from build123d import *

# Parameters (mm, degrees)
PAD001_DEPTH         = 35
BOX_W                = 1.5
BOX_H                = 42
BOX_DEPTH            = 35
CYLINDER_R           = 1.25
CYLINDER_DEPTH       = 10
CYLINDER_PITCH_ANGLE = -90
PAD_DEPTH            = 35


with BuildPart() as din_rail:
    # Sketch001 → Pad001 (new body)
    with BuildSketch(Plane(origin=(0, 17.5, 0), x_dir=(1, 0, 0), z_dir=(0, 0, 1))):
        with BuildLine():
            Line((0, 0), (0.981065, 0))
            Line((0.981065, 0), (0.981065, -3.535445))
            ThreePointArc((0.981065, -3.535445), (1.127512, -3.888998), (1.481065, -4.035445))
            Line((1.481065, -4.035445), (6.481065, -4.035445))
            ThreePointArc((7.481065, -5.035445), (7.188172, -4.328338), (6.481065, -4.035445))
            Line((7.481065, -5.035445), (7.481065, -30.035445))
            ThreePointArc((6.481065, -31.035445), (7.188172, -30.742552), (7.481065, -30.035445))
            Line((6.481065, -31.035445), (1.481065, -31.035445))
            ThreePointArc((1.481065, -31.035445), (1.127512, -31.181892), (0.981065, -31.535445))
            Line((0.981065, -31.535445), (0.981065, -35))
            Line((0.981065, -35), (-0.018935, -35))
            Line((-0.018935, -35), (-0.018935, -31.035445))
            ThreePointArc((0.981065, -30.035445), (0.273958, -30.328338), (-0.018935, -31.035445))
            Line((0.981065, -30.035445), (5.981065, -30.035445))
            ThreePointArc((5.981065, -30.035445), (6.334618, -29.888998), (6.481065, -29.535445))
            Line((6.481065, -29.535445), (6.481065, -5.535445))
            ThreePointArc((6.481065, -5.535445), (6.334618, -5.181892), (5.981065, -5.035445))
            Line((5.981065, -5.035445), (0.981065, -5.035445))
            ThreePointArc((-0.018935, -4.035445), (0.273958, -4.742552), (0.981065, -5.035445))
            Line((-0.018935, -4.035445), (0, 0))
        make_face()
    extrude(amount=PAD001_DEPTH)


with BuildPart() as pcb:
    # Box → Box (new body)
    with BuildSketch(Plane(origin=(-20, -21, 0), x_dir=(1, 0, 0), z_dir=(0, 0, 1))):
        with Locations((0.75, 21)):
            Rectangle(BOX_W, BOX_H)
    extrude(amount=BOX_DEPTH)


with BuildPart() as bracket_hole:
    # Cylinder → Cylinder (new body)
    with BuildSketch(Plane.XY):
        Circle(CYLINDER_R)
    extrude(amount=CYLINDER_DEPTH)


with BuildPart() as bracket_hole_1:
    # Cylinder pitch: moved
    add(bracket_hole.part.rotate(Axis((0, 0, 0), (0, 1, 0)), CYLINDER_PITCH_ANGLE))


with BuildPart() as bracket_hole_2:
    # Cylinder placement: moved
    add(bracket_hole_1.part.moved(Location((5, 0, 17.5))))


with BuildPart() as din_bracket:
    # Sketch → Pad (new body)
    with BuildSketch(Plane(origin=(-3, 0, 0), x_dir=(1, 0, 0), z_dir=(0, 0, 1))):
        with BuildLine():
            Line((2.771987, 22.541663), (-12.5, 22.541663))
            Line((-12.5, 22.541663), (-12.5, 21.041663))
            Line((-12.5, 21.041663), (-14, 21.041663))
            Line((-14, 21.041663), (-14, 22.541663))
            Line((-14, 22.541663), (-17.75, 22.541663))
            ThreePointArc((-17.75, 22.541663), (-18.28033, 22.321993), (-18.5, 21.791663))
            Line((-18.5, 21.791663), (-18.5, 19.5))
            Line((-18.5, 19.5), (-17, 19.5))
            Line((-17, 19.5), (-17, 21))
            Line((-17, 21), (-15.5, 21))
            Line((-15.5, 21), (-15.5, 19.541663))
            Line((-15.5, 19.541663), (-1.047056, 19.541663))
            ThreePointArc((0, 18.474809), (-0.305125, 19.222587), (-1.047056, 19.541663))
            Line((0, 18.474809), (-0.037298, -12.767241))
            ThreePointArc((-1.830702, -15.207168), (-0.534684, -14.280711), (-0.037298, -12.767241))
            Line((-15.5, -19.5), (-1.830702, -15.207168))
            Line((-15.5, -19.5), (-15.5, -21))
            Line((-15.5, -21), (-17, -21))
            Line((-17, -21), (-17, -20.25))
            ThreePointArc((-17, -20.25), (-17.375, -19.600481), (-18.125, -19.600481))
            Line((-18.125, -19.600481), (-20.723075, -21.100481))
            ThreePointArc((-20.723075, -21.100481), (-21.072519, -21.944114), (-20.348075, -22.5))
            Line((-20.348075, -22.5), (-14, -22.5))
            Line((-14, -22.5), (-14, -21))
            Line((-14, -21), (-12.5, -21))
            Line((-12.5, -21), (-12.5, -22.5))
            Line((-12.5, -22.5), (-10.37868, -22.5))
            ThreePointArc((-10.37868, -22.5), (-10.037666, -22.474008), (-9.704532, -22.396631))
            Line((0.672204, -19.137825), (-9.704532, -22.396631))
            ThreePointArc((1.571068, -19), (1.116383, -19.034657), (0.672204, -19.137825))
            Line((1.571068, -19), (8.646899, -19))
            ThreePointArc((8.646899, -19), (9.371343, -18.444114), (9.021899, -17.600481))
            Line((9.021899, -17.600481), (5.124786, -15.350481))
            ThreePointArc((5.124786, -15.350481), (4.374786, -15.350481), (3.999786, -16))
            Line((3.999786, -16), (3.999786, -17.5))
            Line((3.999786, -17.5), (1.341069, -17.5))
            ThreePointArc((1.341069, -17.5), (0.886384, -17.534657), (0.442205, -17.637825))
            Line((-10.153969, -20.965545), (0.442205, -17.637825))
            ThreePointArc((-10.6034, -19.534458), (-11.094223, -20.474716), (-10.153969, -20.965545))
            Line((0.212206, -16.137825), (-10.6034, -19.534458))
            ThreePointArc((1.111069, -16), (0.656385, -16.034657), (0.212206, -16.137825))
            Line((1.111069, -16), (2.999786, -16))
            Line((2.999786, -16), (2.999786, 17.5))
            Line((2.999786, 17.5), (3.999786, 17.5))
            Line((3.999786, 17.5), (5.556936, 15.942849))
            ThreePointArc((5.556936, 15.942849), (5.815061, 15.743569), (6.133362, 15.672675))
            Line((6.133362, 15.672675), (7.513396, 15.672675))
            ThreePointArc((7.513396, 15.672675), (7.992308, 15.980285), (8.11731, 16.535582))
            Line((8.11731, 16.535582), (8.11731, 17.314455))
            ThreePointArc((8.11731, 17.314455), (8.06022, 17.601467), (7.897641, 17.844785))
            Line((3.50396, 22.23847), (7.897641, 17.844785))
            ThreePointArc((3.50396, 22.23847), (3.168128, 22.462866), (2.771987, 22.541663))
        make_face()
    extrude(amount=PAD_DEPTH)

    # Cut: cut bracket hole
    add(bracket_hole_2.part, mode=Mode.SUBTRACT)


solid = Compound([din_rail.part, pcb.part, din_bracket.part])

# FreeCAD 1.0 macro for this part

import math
import FreeCAD as App
import Part
import Sketcher
Q = App.Units.Quantity


def add_polygon(sketch, points):
    """Adds a closed chain of lines whose ends are joined by coincident constraints."""
    first, n = sketch.GeometryCount, len(points)
    for a, b in zip(points, points[1:] + points[:1]):
        sketch.addGeometry(Part.LineSegment(App.Vector(*a, 0), App.Vector(*b, 0)), False)
    for i in range(n):
        sketch.addConstraint(Sketcher.Constraint("Coincident", first + i, 2, first + (i + 1) % n, 1))

doc = App.newDocument("Part")
body = doc.addObject("PartDesign::Body", "Body")

sketch1 = body.newObject("Sketcher::SketchObject", "Sketch")
sketch1.AttachmentSupport = (doc.getObject("XY_Plane"), [""])
sketch1.MapMode = "FlatFace"
sketch1.addGeometry(Part.LineSegment(App.Vector(1, 17.5, 0), App.Vector(0, 17.5, 0)), False)
sketch1.addGeometry(Part.LineSegment(App.Vector(0, 17.5, 0), App.Vector(0, 13.5, 0)), False)
sketch1.addGeometry(Part.ArcOfCircle(Part.Circle(App.Vector(1, 13.5, 0), App.Vector(0, 0, 1), 1), math.radians(180), math.radians(270)), False)
sketch1.addGeometry(Part.LineSegment(App.Vector(1, 12.5, 0), App.Vector(6, 12.5, 0)), False)
sketch1.addGeometry(Part.ArcOfCircle(Part.Circle(App.Vector(6, 12, 0), App.Vector(0, 0, 1), 0.5), math.radians(0), math.radians(90)), False)
sketch1.addGeometry(Part.LineSegment(App.Vector(6.5, 12, 0), App.Vector(6.5, -12, 0)), False)
sketch1.addGeometry(Part.ArcOfCircle(Part.Circle(App.Vector(6, -12, 0), App.Vector(0, 0, 1), 0.5), math.radians(-90), math.radians(0)), False)
sketch1.addGeometry(Part.LineSegment(App.Vector(6, -12.5, 0), App.Vector(1, -12.5, 0)), False)
sketch1.addGeometry(Part.ArcOfCircle(Part.Circle(App.Vector(1, -13.5, 0), App.Vector(0, 0, 1), 1), math.radians(90), math.radians(180)), False)
sketch1.addGeometry(Part.LineSegment(App.Vector(0, -13.5, 0), App.Vector(0, -17.5, 0)), False)
sketch1.addGeometry(Part.LineSegment(App.Vector(0, -17.5, 0), App.Vector(1, -17.5, 0)), False)
sketch1.addGeometry(Part.LineSegment(App.Vector(1, -17.5, 0), App.Vector(1, -14, 0)), False)
sketch1.addGeometry(Part.ArcOfCircle(Part.Circle(App.Vector(1.5, -14, 0), App.Vector(0, 0, 1), 0.5), math.radians(90), math.radians(180)), False)
sketch1.addGeometry(Part.LineSegment(App.Vector(1.5, -13.5, 0), App.Vector(6.5, -13.5, 0)), False)
sketch1.addGeometry(Part.ArcOfCircle(Part.Circle(App.Vector(6.5, -12.5, 0), App.Vector(0, 0, 1), 1), math.radians(-90), math.radians(0)), False)
sketch1.addGeometry(Part.LineSegment(App.Vector(7.5, -12.5, 0), App.Vector(7.5, 12.5, 0)), False)
sketch1.addGeometry(Part.ArcOfCircle(Part.Circle(App.Vector(6.5, 12.5, 0), App.Vector(0, 0, 1), 1), math.radians(0), math.radians(90)), False)
sketch1.addGeometry(Part.LineSegment(App.Vector(6.5, 13.5, 0), App.Vector(1.5, 13.5, 0)), False)
sketch1.addGeometry(Part.ArcOfCircle(Part.Circle(App.Vector(1.5, 14, 0), App.Vector(0, 0, 1), 0.5), math.radians(-180), math.radians(-90)), False)
sketch1.addGeometry(Part.LineSegment(App.Vector(1, 14, 0), App.Vector(1, 17.5, 0)), False)
sketch1.addConstraint(Sketcher.Constraint("Coincident", 0, 2, 1, 1))
sketch1.addConstraint(Sketcher.Constraint("Coincident", 1, 2, 2, 1))
sketch1.addConstraint(Sketcher.Constraint("Tangent", 2, 2, 3, 1))
sketch1.addConstraint(Sketcher.Constraint("Coincident", 3, 2, 4, 2))
sketch1.addConstraint(Sketcher.Constraint("Coincident", 4, 1, 5, 1))
sketch1.addConstraint(Sketcher.Constraint("Coincident", 5, 2, 6, 2))
sketch1.addConstraint(Sketcher.Constraint("Coincident", 6, 1, 7, 1))
sketch1.addConstraint(Sketcher.Constraint("Tangent", 7, 2, 8, 1))
sketch1.addConstraint(Sketcher.Constraint("Tangent", 8, 2, 9, 1))
sketch1.addConstraint(Sketcher.Constraint("Coincident", 9, 2, 10, 1))
sketch1.addConstraint(Sketcher.Constraint("Coincident", 10, 2, 11, 1))
sketch1.addConstraint(Sketcher.Constraint("Coincident", 11, 2, 12, 2))
sketch1.addConstraint(Sketcher.Constraint("Coincident", 12, 1, 13, 1))
sketch1.addConstraint(Sketcher.Constraint("Tangent", 13, 2, 14, 1))
sketch1.addConstraint(Sketcher.Constraint("Tangent", 14, 2, 15, 1))
sketch1.addConstraint(Sketcher.Constraint("Tangent", 15, 2, 16, 1))
sketch1.addConstraint(Sketcher.Constraint("Tangent", 16, 2, 17, 1))
sketch1.addConstraint(Sketcher.Constraint("Coincident", 17, 2, 18, 2))
sketch1.addConstraint(Sketcher.Constraint("Coincident", 18, 1, 19, 1))
sketch1.addConstraint(Sketcher.Constraint("Coincident", 19, 2, 0, 1))
sketch1.addConstraint(Sketcher.Constraint("Horizontal", 0))
sketch1.addConstraint(Sketcher.Constraint("Horizontal", 3))
sketch1.addConstraint(Sketcher.Constraint("Vertical", 5))
sketch1.addConstraint(Sketcher.Constraint("Horizontal", 7))
sketch1.addConstraint(Sketcher.Constraint("Vertical", 9))
sketch1.addConstraint(Sketcher.Constraint("Horizontal", 10))
sketch1.addConstraint(Sketcher.Constraint("Vertical", 11))
sketch1.addConstraint(Sketcher.Constraint("Horizontal", 13))
sketch1.addConstraint(Sketcher.Constraint("Vertical", 15))
sketch1.addConstraint(Sketcher.Constraint("Horizontal", 17))
sketch1.addConstraint(Sketcher.Constraint("Vertical", 19))
sketch1.addConstraint(Sketcher.Constraint("Equal", 4, 6))
sketch1.addConstraint(Sketcher.Constraint("Equal", 2, 8))
sketch1.addConstraint(Sketcher.Constraint("Equal", 6, 12))
sketch1.addConstraint(Sketcher.Constraint("Equal", 8, 14))
sketch1.addConstraint(Sketcher.Constraint("Equal", 14, 16))
sketch1.addConstraint(Sketcher.Constraint("Equal", 12, 18))
sketch1.addConstraint(Sketcher.Constraint("Symmetric", 10, 2, 19, 2, -1))
sketch1.addConstraint(Sketcher.Constraint("PointOnObject", 0, 2, -2))
sketch1.addConstraint(Sketcher.Constraint("Horizontal", 2, 3, 1, 2))
sketch1.addConstraint(Sketcher.Constraint("Horizontal", 16, 3, 2, 2))
sketch1.addConstraint(Sketcher.Constraint("Horizontal", 6, 3, 5, 2))
sketch1.addConstraint(Sketcher.Constraint("Horizontal", 14, 3, 6, 1))
sketch1.addConstraint(Sketcher.Constraint("Horizontal", 12, 3, 11, 2))
sketch1.addConstraint(Sketcher.Constraint("Vertical", 2, 3, 8, 3))
sketch1.addConstraint(Sketcher.Constraint("Vertical", 6, 3, 3, 2))
sketch1.addConstraint(Sketcher.Constraint("Vertical", 16, 3, 4, 1))
sketch1.addConstraint(Sketcher.Constraint("Vertical", 3, 2, 6, 1))
sketch1.addConstraint(Sketcher.Constraint("Vertical", 7, 2, 10, 2))
sketch1.addConstraint(Sketcher.Constraint("Vertical", 18, 3, 12, 1))
sketch1.addConstraint(Sketcher.Constraint("Vertical", 12, 1, 17, 2))
sketch1.addConstraint(Sketcher.Constraint("Radius", 2, Q("0.999999 mm")))
sketch1.addConstraint(Sketcher.Constraint("Radius", 4, Q("0.500001 mm")))
sketch1.addConstraint(Sketcher.Constraint("DistanceX", 3, 1, 3, 2, Q("5 mm")))
sketch1.addConstraint(Sketcher.Constraint("DistanceY", 5, 2, 5, 1, Q("24 mm")))
sketch1.addConstraint(Sketcher.Constraint("DistanceY", 15, 1, 15, 2, Q("25 mm")))
sketch1.addConstraint(Sketcher.Constraint("DistanceY", -1, 1, 0, 2, Q("17.5 mm")))
sketch1.addConstraint(Sketcher.Constraint("DistanceY", 2, 3, 18, 1, Q("0.500001 mm")))
sketch1.addConstraint(Sketcher.Constraint("Distance", 1, Q("4.035489 mm")))
sketch1.addConstraint(Sketcher.Constraint("DistanceX", 0, 2, 0, 1, Q("0.981065 mm")))
pad1 = body.newObject("PartDesign::Pad", "Pad")
pad1.Profile = sketch1
pad1.Length = 35
body2 = doc.addObject("PartDesign::Body", "Body001")

sketch2 = body2.newObject("Sketcher::SketchObject", "Sketch001")
sketch2.AttachmentSupport = (doc.getObject("XY_Plane001"), [""])
sketch2.MapMode = "FlatFace"
add_polygon(sketch2, [(-20, 21), (-20, -21), (-18.5, -21), (-18.5, 21)])
sketch2.addConstraint(Sketcher.Constraint("Vertical", 0))
sketch2.addConstraint(Sketcher.Constraint("Horizontal", 1))
sketch2.addConstraint(Sketcher.Constraint("Vertical", 2))
sketch2.addConstraint(Sketcher.Constraint("Horizontal", 3))
sketch2.addConstraint(Sketcher.Constraint("DistanceY", 0, 2, 0, 1, Q("42 mm")))
sketch2.addConstraint(Sketcher.Constraint("DistanceX", 1, 1, 1, 2, Q("1.5 mm")))
sketch2.addConstraint(Sketcher.Constraint("DistanceX", 0, 2, -1, 1, Q("20 mm")))
sketch2.addConstraint(Sketcher.Constraint("DistanceY", 0, 2, -1, 1, Q("21 mm")))
pad2 = body2.newObject("PartDesign::Pad", "Pad001")
pad2.Profile = sketch2
pad2.Length = 35
body3 = doc.addObject("PartDesign::Body", "Body002")

sketch3 = body3.newObject("Sketcher::SketchObject", "Sketch002")
sketch3.AttachmentSupport = (doc.getObject("XY_Plane002"), [""])
sketch3.MapMode = "FlatFace"
sketch3.addGeometry(Part.Circle(App.Vector(0, 0, 0), App.Vector(0, 0, 1), 1.2), False)
sketch3.addConstraint(Sketcher.Constraint("Coincident", 0, 3, -1, 1))
sketch3.addConstraint(Sketcher.Constraint("Diameter", 0, Q("2.5 mm")))
pad3 = body3.newObject("PartDesign::Pad", "Pad002")
pad3.Profile = sketch3
pad3.Length = 10
body4 = doc.addObject("PartDesign::Body", "Body003")
doc.recompute()

body3.Placement = App.Placement(App.Vector(0, 0, 0), App.Rotation(App.Vector(0, 1, 0), 270))
boolean = body4.newObject("PartDesign::Boolean", "Boolean")
boolean.Type = "Fuse"
boolean.addObjects([body3])
body5 = doc.addObject("PartDesign::Body", "Body004")
doc.recompute()

body4.Placement = App.Placement(App.Vector(5, 0, 17.5), App.Rotation(App.Vector(0, 0, 1), 0))
boolean2 = body5.newObject("PartDesign::Boolean", "Boolean001")
boolean2.Type = "Fuse"
boolean2.addObjects([body4])
body6 = doc.addObject("PartDesign::Body", "Body005")

sketch4 = body6.newObject("Sketcher::SketchObject", "Sketch003")
sketch4.AttachmentSupport = (doc.getObject("XY_Plane005"), [""])
sketch4.MapMode = "FlatFace"
sketch4.addGeometry(Part.LineSegment(App.Vector(-0.228013, 22.541663, 0), App.Vector(-15.5, 22.541663, 0)), False)
sketch4.addGeometry(Part.LineSegment(App.Vector(-15.5, 22.541663, 0), App.Vector(-15.5, 21.041663, 0)), False)
sketch4.addGeometry(Part.LineSegment(App.Vector(-15.5, 21.041663, 0), App.Vector(-17, 21.041663, 0)), False)
sketch4.addGeometry(Part.LineSegment(App.Vector(-17, 21.041663, 0), App.Vector(-17, 22.541663, 0)), False)
sketch4.addGeometry(Part.LineSegment(App.Vector(-17, 22.541663, 0), App.Vector(-20.75, 22.541663, 0)), False)
sketch4.addGeometry(Part.ArcOfCircle(Part.Circle(App.Vector(-20.75, 21.791663, 0), App.Vector(0, 0, 1), 0.75), math.radians(90.000022), math.radians(179.999978)), False)
sketch4.addGeometry(Part.LineSegment(App.Vector(-21.5, 21.791663, 0), App.Vector(-21.5, 19.5, 0)), False)
sketch4.addGeometry(Part.LineSegment(App.Vector(-21.5, 19.5, 0), App.Vector(-20, 19.5, 0)), False)
sketch4.addGeometry(Part.LineSegment(App.Vector(-20, 19.5, 0), App.Vector(-20, 21, 0)), False)
sketch4.addGeometry(Part.LineSegment(App.Vector(-20, 21, 0), App.Vector(-18.5, 21, 0)), False)
sketch4.addGeometry(Part.LineSegment(App.Vector(-18.5, 21, 0), App.Vector(-18.5, 19.541663, 0)), False)
sketch4.addGeometry(Part.LineSegment(App.Vector(-18.5, 19.541663, 0), App.Vector(-4.047056, 19.541663, 0)), False)
sketch4.addGeometry(Part.ArcOfCircle(Part.Circle(App.Vector(-4.065745, 18.476081, 0), App.Vector(0, 0, 1), 1.065746), math.radians(-0.068378), math.radians(88.995192)), False)
sketch4.addGeometry(Part.LineSegment(App.Vector(-3, 18.474809, 0), App.Vector(-3.037298, -12.767241, 0)), False)
sketch4.addGeometry(Part.ArcOfCircle(Part.Circle(App.Vector(-5.597918, -12.764186, 0), App.Vector(0, 0, 1), 2.560622), math.radians(-72.565163), math.radians(-0.068368)), False)
sketch4.addGeometry(Part.LineSegment(App.Vector(-4.830702, -15.207168, 0), App.Vector(-18.5, -19.5, 0)), False)
sketch4.addGeometry(Part.LineSegment(App.Vector(-18.5, -19.5, 0), App.Vector(-18.5, -21, 0)), False)
sketch4.addGeometry(Part.LineSegment(App.Vector(-18.5, -21, 0), App.Vector(-20, -21, 0)), False)
sketch4.addGeometry(Part.LineSegment(App.Vector(-20, -21, 0), App.Vector(-20, -20.25, 0)), False)
sketch4.addGeometry(Part.ArcOfCircle(Part.Circle(App.Vector(-20.75, -20.25, 0), App.Vector(0, 0, 1), 0.75), math.radians(0.000004), math.radians(120)), False)
sketch4.addGeometry(Part.LineSegment(App.Vector(-21.125, -19.600481, 0), App.Vector(-23.723075, -21.100481, 0)), False)
sketch4.addGeometry(Part.ArcOfCircle(Part.Circle(App.Vector(-23.348074, -21.75, 0), App.Vector(0, 0, 1), 0.75), math.radians(120.000042), math.radians(269.999959)), False)
sketch4.addGeometry(Part.LineSegment(App.Vector(-23.348075, -22.5, 0), App.Vector(-17, -22.5, 0)), False)
sketch4.addGeometry(Part.LineSegment(App.Vector(-17, -22.5, 0), App.Vector(-17, -21, 0)), False)
sketch4.addGeometry(Part.LineSegment(App.Vector(-17, -21, 0), App.Vector(-15.5, -21, 0)), False)
sketch4.addGeometry(Part.LineSegment(App.Vector(-15.5, -21, 0), App.Vector(-15.5, -22.5, 0)), False)
sketch4.addGeometry(Part.LineSegment(App.Vector(-15.5, -22.5, 0), App.Vector(-13.37868, -22.5, 0)), False)
sketch4.addGeometry(Part.ArcOfCircle(Part.Circle(App.Vector(-13.378674, -20.250039, 0), App.Vector(0, 0, 1), 2.249961), math.radians(-90.000155), math.radians(-72.564991)), False)
sketch4.addGeometry(Part.LineSegment(App.Vector(-12.704532, -22.396631, 0), App.Vector(-2.327796, -19.137825, 0)), False)
sketch4.addGeometry(Part.ArcOfCircle(Part.Circle(App.Vector(-1.428925, -22.000051, 0), App.Vector(0, 0, 1), 3.000051), math.radians(90.000125), math.radians(107.434687)), False)
sketch4.addGeometry(Part.LineSegment(App.Vector(-1.428932, -19, 0), App.Vector(5.646899, -19, 0)), False)
sketch4.addGeometry(Part.ArcOfCircle(Part.Circle(App.Vector(5.646898, -18.25, 0), App.Vector(0, 0, 1), 0.75), math.radians(-89.999959), math.radians(59.999958)), False)
sketch4.addGeometry(Part.LineSegment(App.Vector(6.021899, -17.600481, 0), App.Vector(2.124786, -15.350481, 0)), False)
sketch4.addGeometry(Part.ArcOfCircle(Part.Circle(App.Vector(1.749786, -16, 0), App.Vector(0, 0, 1), 0.75), math.radians(60), math.radians(179.999996)), False)
sketch4.addGeometry(Part.LineSegment(App.Vector(0.999786, -16, 0), App.Vector(0.999786, -17.5, 0)), False)
sketch4.addGeometry(Part.LineSegment(App.Vector(0.999786, -17.5, 0), App.Vector(-1.658931, -17.5, 0)), False)
sketch4.addGeometry(Part.ArcOfCircle(Part.Circle(App.Vector(-1.658924, -20.500051, 0), App.Vector(0, 0, 1), 3.000051), math.radians(90.000125), math.radians(107.434687)), False)
sketch4.addGeometry(Part.LineSegment(App.Vector(-2.557795, -17.637825, 0), App.Vector(-13.153969, -20.965545, 0)), False)
sketch4.addGeometry(Part.ArcOfCircle(Part.Circle(App.Vector(-13.37868, -20.25, 0), App.Vector(0, 0, 1), 0.75), math.radians(107.435215), math.radians(287.434441)), False)
sketch4.addGeometry(Part.LineSegment(App.Vector(-13.6034, -19.534458, 0), App.Vector(-2.787794, -16.137825, 0)), False)
sketch4.addGeometry(Part.ArcOfCircle(Part.Circle(App.Vector(-1.888923, -19.000051, 0), App.Vector(0, 0, 1), 3.000051), math.radians(90.000144), math.radians(107.434687)), False)
sketch4.addGeometry(Part.LineSegment(App.Vector(-1.888931, -16, 0), App.Vector(-0.000214, -16, 0)), False)
sketch4.addGeometry(Part.LineSegment(App.Vector(-0.000214, -16, 0), App.Vector(-0.000214, 17.5, 0)), False)
sketch4.addGeometry(Part.LineSegment(App.Vector(-0.000214, 17.5, 0), App.Vector(0.999786, 17.5, 0)), False)
sketch4.addGeometry(Part.LineSegment(App.Vector(0.999786, 17.5, 0), App.Vector(2.556936, 15.942849, 0)), False)
sketch4.addGeometry(Part.ArcOfCircle(Part.Circle(App.Vector(3.13336, 16.422672, 0), App.Vector(0, 0, 1), 0.749997), math.radians(-140.225599), math.radians(-89.999884)), False)
sketch4.addGeometry(Part.LineSegment(App.Vector(3.133362, 15.672675, 0), App.Vector(4.513396, 15.672675, 0)), False)
sketch4.addGeometry(Part.ArcOfCircle(Part.Circle(App.Vector(4.377843, 16.410324, 0), App.Vector(0, 0, 1), 0.750001), math.radians(-79.587298), math.radians(9.614033)), False)
sketch4.addGeometry(Part.LineSegment(App.Vector(5.11731, 16.535582, 0), App.Vector(5.11731, 17.314455, 0)), False)
sketch4.addGeometry(Part.ArcOfCircle(Part.Circle(App.Vector(4.367307, 17.314455, 0), App.Vector(0, 0, 1), 0.750003), math.radians(0.000018), math.radians(44.99982)), False)
sketch4.addGeometry(Part.LineSegment(App.Vector(4.897641, 17.844785, 0), App.Vector(0.50396, 22.23847, 0)), False)
sketch4.addGeometry(Part.ArcOfCircle(Part.Circle(App.Vector(-0.228011, 21.5065, 0), App.Vector(0, 0, 1), 1.035163), math.radians(44.999934), math.radians(90.000085)), False)
sketch4.addConstraint(Sketcher.Constraint("Coincident", 0, 2, 1, 1))
sketch4.addConstraint(Sketcher.Constraint("Coincident", 1, 2, 2, 1))
sketch4.addConstraint(Sketcher.Constraint("Coincident", 2, 2, 3, 1))
sketch4.addConstraint(Sketcher.Constraint("Coincident", 3, 2, 4, 1))
sketch4.addConstraint(Sketcher.Constraint("Coincident", 4, 2, 5, 1))
sketch4.addConstraint(Sketcher.Constraint("Coincident", 5, 2, 6, 1))
sketch4.addConstraint(Sketcher.Constraint("Coincident", 6, 2, 7, 1))
sketch4.addConstraint(Sketcher.Constraint("Coincident", 7, 2, 8, 1))
sketch4.addConstraint(Sketcher.Constraint("Coincident", 8, 2, 9, 1))
sketch4.addConstraint(Sketcher.Constraint("Coincident", 9, 2, 10, 1))
sketch4.addConstraint(Sketcher.Constraint("Coincident", 10, 2, 11, 1))
sketch4.addConstraint(Sketcher.Constraint("Coincident", 11, 2, 12, 2))
sketch4.addConstraint(Sketcher.Constraint("Coincident", 12, 1, 13, 1))
sketch4.addConstraint(Sketcher.Constraint("Coincident", 13, 2, 14, 2))
sketch4.addConstraint(Sketcher.Constraint("Coincident", 14, 1, 15, 1))
sketch4.addConstraint(Sketcher.Constraint("Coincident", 15, 2, 16, 1))
sketch4.addConstraint(Sketcher.Constraint("Coincident", 16, 2, 17, 1))
sketch4.addConstraint(Sketcher.Constraint("Coincident", 17, 2, 18, 1))
sketch4.addConstraint(Sketcher.Constraint("Coincident", 18, 2, 19, 1))
sketch4.addConstraint(Sketcher.Constraint("Coincident", 19, 2, 20, 1))
sketch4.addConstraint(Sketcher.Constraint("Coincident", 20, 2, 21, 1))
sketch4.addConstraint(Sketcher.Constraint("Coincident", 21, 2, 22, 1))
sketch4.addConstraint(Sketcher.Constraint("Coincident", 22, 2, 23, 1))
sketch4.addConstraint(Sketcher.Constraint("Coincident", 23, 2, 24, 1))
sketch4.addConstraint(Sketcher.Constraint("Coincident", 24, 2, 25, 1))
sketch4.addConstraint(Sketcher.Constraint("Coincident", 25, 2, 26, 1))
sketch4.addConstraint(Sketcher.Constraint("Coincident", 26, 2, 27, 1))
sketch4.addConstraint(Sketcher.Constraint("Coincident", 27, 2, 28, 1))
sketch4.addConstraint(Sketcher.Constraint("Coincident", 28, 2, 29, 2))
sketch4.addConstraint(Sketcher.Constraint("Coincident", 29, 1, 30, 1))
sketch4.addConstraint(Sketcher.Constraint("Coincident", 30, 2, 31, 1))
sketch4.addConstraint(Sketcher.Constraint("Coincident", 31, 2, 32, 1))
sketch4.addConstraint(Sketcher.Constraint("Coincident", 32, 2, 33, 1))
sketch4.addConstraint(Sketcher.Constraint("Coincident", 33, 2, 34, 1))
sketch4.addConstraint(Sketcher.Constraint("Coincident", 34, 2, 35, 1))
sketch4.addConstraint(Sketcher.Constraint("Coincident", 35, 2, 36, 1))
sketch4.addConstraint(Sketcher.Constraint("Coincident", 36, 2, 37, 1))
sketch4.addConstraint(Sketcher.Constraint("Coincident", 37, 2, 38, 2))
sketch4.addConstraint(Sketcher.Constraint("Coincident", 38, 1, 39, 1))
sketch4.addConstraint(Sketcher.Constraint("Coincident", 39, 2, 40, 2))
sketch4.addConstraint(Sketcher.Constraint("Coincident", 40, 1, 41, 1))
sketch4.addConstraint(Sketcher.Constraint("Coincident", 41, 2, 42, 1))
sketch4.addConstraint(Sketcher.Constraint("Coincident", 42, 2, 43, 1))
sketch4.addConstraint(Sketcher.Constraint("Coincident", 43, 2, 44, 1))
sketch4.addConstraint(Sketcher.Constraint("Coincident", 44, 2, 45, 1))
sketch4.addConstraint(Sketcher.Constraint("Coincident", 45, 2, 46, 1))
sketch4.addConstraint(Sketcher.Constraint("Coincident", 46, 2, 47, 1))
sketch4.addConstraint(Sketcher.Constraint("Coincident", 47, 2, 48, 1))
sketch4.addConstraint(Sketcher.Constraint("Coincident", 48, 2, 49, 1))
sketch4.addConstraint(Sketcher.Constraint("Coincident", 49, 2, 50, 1))
sketch4.addConstraint(Sketcher.Constraint("Coincident", 50, 2, 51, 1))
sketch4.addConstraint(Sketcher.Constraint("Coincident", 51, 2, 0, 1))
sketch4.addConstraint(Sketcher.Constraint("Horizontal", 0))
sketch4.addConstraint(Sketcher.Constraint("Vertical", 1))
sketch4.addConstraint(Sketcher.Constraint("Horizontal", 2))
sketch4.addConstraint(Sketcher.Constraint("Vertical", 3))
sketch4.addConstraint(Sketcher.Constraint("Horizontal", 4))
sketch4.addConstraint(Sketcher.Constraint("Vertical", 6))
sketch4.addConstraint(Sketcher.Constraint("Horizontal", 7))
sketch4.addConstraint(Sketcher.Constraint("Vertical", 8))
sketch4.addConstraint(Sketcher.Constraint("Horizontal", 9))
sketch4.addConstraint(Sketcher.Constraint("Vertical", 10))
sketch4.addConstraint(Sketcher.Constraint("Horizontal", 11))
sketch4.addConstraint(Sketcher.Constraint("Vertical", 16))
sketch4.addConstraint(Sketcher.Constraint("Horizontal", 17))
sketch4.addConstraint(Sketcher.Constraint("Vertical", 18))
sketch4.addConstraint(Sketcher.Constraint("Horizontal", 22))
sketch4.addConstraint(Sketcher.Constraint("Vertical", 23))
sketch4.addConstraint(Sketcher.Constraint("Horizontal", 24))
sketch4.addConstraint(Sketcher.Constraint("Vertical", 25))
sketch4.addConstraint(Sketcher.Constraint("Horizontal", 26))
sketch4.addConstraint(Sketcher.Constraint("Horizontal", 30))
sketch4.addConstraint(Sketcher.Constraint("Vertical", 34))
sketch4.addConstraint(Sketcher.Constraint("Horizontal", 35))
sketch4.addConstraint(Sketcher.Constraint("Horizontal", 41))
sketch4.addConstraint(Sketcher.Constraint("Vertical", 42))
sketch4.addConstraint(Sketcher.Constraint("Horizontal", 43))
sketch4.addConstraint(Sketcher.Constraint("Horizontal", 46))
sketch4.addConstraint(Sketcher.Constraint("Vertical", 48))
sketch4.addConstraint(Sketcher.Constraint("DistanceX", 43, 1, 43, 2, Q("1 mm")))
sketch4.addConstraint(Sketcher.Constraint("Radius", 5, Q("0.75 mm")))
sketch4.addConstraint(Sketcher.Constraint("Radius", 19, Q("0.75 mm")))
sketch4.addConstraint(Sketcher.Constraint("Radius", 21, Q("0.75 mm")))
sketch4.addConstraint(Sketcher.Constraint("Radius", 31, Q("0.75 mm")))
sketch4.addConstraint(Sketcher.Constraint("Radius", 33, Q("0.75 mm")))
sketch4.addConstraint(Sketcher.Constraint("Radius", 38, Q("0.75 mm")))
sketch4.addConstraint(Sketcher.Constraint("Radius", 47, Q("0.750001 mm")))
sketch4.addConstraint(Sketcher.Constraint("Distance", 20, Q("2.999999 mm")))
sketch4.addConstraint(Sketcher.Constraint("DistanceX", 2, 2, 2, 1, Q("1.5 mm")))
sketch4.addConstraint(Sketcher.Constraint("DistanceX", 7, 1, 7, 2, Q("1.5 mm")))
sketch4.addConstraint(Sketcher.Constraint("DistanceX", 9, 1, 9, 2, Q("1.5 mm")))
sketch4.addConstraint(Sketcher.Constraint("DistanceX", 17, 2, 17, 1, Q("1.5 mm")))
sketch4.addConstraint(Sketcher.Constraint("DistanceX", 24, 1, 24, 2, Q("1.5 mm")))
sketch4.addConstraint(Sketcher.Constraint("DistanceY", 1, 2, 1, 1, Q("1.5 mm")))
sketch4.addConstraint(Sketcher.Constraint("DistanceY", 3, 1, 3, 2, Q("1.5 mm")))
sketch4.addConstraint(Sketcher.Constraint("DistanceY", 8, 1, 8, 2, Q("1.5 mm")))
sketch4.addConstraint(Sketcher.Constraint("DistanceY", 16, 2, 16, 1, Q("1.5 mm")))
sketch4.addConstraint(Sketcher.Constraint("DistanceY", 23, 1, 23, 2, Q("1.5 mm")))
sketch4.addConstraint(Sketcher.Constraint("DistanceY", 25, 2, 25, 1, Q("1.5 mm")))
sketch4.addConstraint(Sketcher.Constraint("DistanceY", 34, 2, 34, 1, Q("1.5 mm")))
sketch4.addConstraint(Sketcher.Constraint("DistanceY", 42, 1, 42, 2, Q("33.5 mm")))
sketch4.addConstraint(Sketcher.Constraint("DistanceY", 33, 3, -1, 1, Q("16 mm")))
sketch4.addConstraint(Sketcher.Constraint("DistanceX", 2, 2, -1, 1, Q("17 mm")))
sketch4.addConstraint(Sketcher.Constraint("DistanceX", 7, 2, -1, 1, Q("20 mm")))
sketch4.addConstraint(Sketcher.Constraint("DistanceY", -1, 1, 8, 2, Q("21 mm")))
sketch4.addConstraint(Sketcher.Constraint("DistanceX", 12, 1, -1, 1, Q("3 mm")))
sketch4.addConstraint(Sketcher.Constraint("DistanceY", 16, 2, -1, 1, Q("21 mm")))
sketch4.addConstraint(Sketcher.Constraint("DistanceX", 17, 2, -1, 1, Q("20 mm")))
sketch4.addConstraint(Sketcher.Constraint("DistanceX", 22, 2, -1, 1, Q("17 mm")))
sketch4.addConstraint(Sketcher.Constraint("DistanceY", 23, 2, -1, 1, Q("21 mm")))
sketch4.addConstraint(Sketcher.Constraint("DistanceY", 29, 1, -1, 1, Q("19 mm")))
sketch4.addConstraint(Sketcher.Constraint("DistanceY", 33, 2, -1, 1, Q("16 mm")))
sketch4.addConstraint(Sketcher.Constraint("DistanceY", 40, 1, -1, 1, Q("16 mm")))
sketch4.addConstraint(Sketcher.Constraint("Distance", 32, Q("4.499999 mm")))
sketch4.addConstraint(Sketcher.Constraint("DistanceX", 4, 2, 4, 1, Q("3.75 mm")))
sketch4.addConstraint(Sketcher.Constraint("DistanceY", 18, 1, 18, 2, Q("0.75 mm")))
sketch4.addConstraint(Sketcher.Constraint("DistanceY", 19, 3, -1, 1, Q("20.25 mm")))
sketch4.addConstraint(Sketcher.Constraint("DistanceY", 38, 3, -1, 1, Q("20.25 mm")))
sketch4.addConstraint(Sketcher.Constraint("Radius", 14, Q("2.560622 mm")))
sketch4.addConstraint(Sketcher.Constraint("Radius", 27, Q("2.249961 mm")))
sketch4.addConstraint(Sketcher.Constraint("Radius", 29, Q("3.000051 mm")))
sketch4.addConstraint(Sketcher.Constraint("Radius", 36, Q("3.000051 mm")))
sketch4.addConstraint(Sketcher.Constraint("Radius", 40, Q("3.000051 mm")))
sketch4.addConstraint(Sketcher.Constraint("DistanceX", 19, 2, -1, 1, Q("21.125 mm")))
sketch4.addConstraint(Sketcher.Constraint("Radius", 12, Q("1.065746 mm")))
sketch4.addConstraint(Sketcher.Constraint("Radius", 45, Q("0.749997 mm")))
sketch4.addConstraint(Sketcher.Constraint("Radius", 49, Q("0.750003 mm")))
sketch4.addConstraint(Sketcher.Constraint("Radius", 51, Q("1.035163 mm")))
sketch4.addConstraint(Sketcher.Constraint("DistanceX", 26, 1, 26, 2, Q("2.12132 mm")))
sketch4.addConstraint(Sketcher.Constraint("DistanceX", 30, 1, 30, 2, Q("7.075831 mm")))
sketch4.addConstraint(Sketcher.Constraint("DistanceX", -1, 1, 31, 3, Q("5.646898 mm")))
sketch4.addConstraint(Sketcher.Constraint("DistanceY", -1, 1, 51, 3, Q("21.5065 mm")))
sketch4.addConstraint(Sketcher.Constraint("DistanceX", -1, 1, 30, 2, Q("5.646899 mm")))
sketch4.addConstraint(Sketcher.Constraint("DistanceX", -1, 1, 31, 2, Q("6.021899 mm")))
sketch4.addConstraint(Sketcher.Constraint("DistanceX", 38, 1, -1, 1, Q("13.6034 mm")))
sketch4.addConstraint(Sketcher.Constraint("Distance", 15, Q("14.32753 mm")))
sketch4.addConstraint(Sketcher.Constraint("Distance", 39, Q("11.336421 mm")))
sketch4.addConstraint(Sketcher.Constraint("DistanceX", 0, 2, 0, 1, Q("15.271987 mm")))
sketch4.addConstraint(Sketcher.Constraint("DistanceX", 11, 1, 11, 2, Q("14.452944 mm")))
sketch4.addConstraint(Sketcher.Constraint("DistanceX", 22, 1, 22, 2, Q("6.348075 mm")))
sketch4.addConstraint(Sketcher.Constraint("DistanceX", 35, 2, 35, 1, Q("2.658717 mm")))
sketch4.addConstraint(Sketcher.Constraint("DistanceX", 41, 1, 41, 2, Q("1.888717 mm")))
sketch4.addConstraint(Sketcher.Constraint("DistanceX", 46, 1, 46, 2, Q("1.380034 mm")))
sketch4.addConstraint(Sketcher.Constraint("DistanceY", 6, 2, 6, 1, Q("2.291663 mm")))
sketch4.addConstraint(Sketcher.Constraint("DistanceY", 10, 2, 10, 1, Q("1.458337 mm")))
sketch4.addConstraint(Sketcher.Constraint("DistanceY", 48, 1, 48, 2, Q("0.778873 mm")))
sketch4.addConstraint(Sketcher.Constraint("DistanceX", 38, 3, -1, 1, Q("13.37868 mm")))
sketch4.addConstraint(Sketcher.Constraint("DistanceX", -1, 1, 45, 3, Q("3.13336 mm")))
sketch4.addConstraint(Sketcher.Constraint("DistanceY", -1, 1, 45, 3, Q("16.422672 mm")))
sketch4.addConstraint(Sketcher.Constraint("DistanceX", 51, 3, -1, 1, Q("0.228011 mm")))
sketch4.addConstraint(Sketcher.Constraint("DistanceY", -1, 1, 12, 1, Q("18.474809 mm")))
sketch4.addConstraint(Sketcher.Constraint("DistanceY", 13, 2, -1, 1, Q("12.767241 mm")))
sketch4.addConstraint(Sketcher.Constraint("DistanceY", 20, 2, -1, 1, Q("21.100481 mm")))
sketch4.addConstraint(Sketcher.Constraint("DistanceY", 27, 2, -1, 1, Q("22.396631 mm")))
sketch4.addConstraint(Sketcher.Constraint("DistanceY", 32, 2, -1, 1, Q("15.350481 mm")))
sketch4.addConstraint(Sketcher.Constraint("DistanceX", 37, 2, -1, 1, Q("13.153969 mm")))
sketch4.addConstraint(Sketcher.Constraint("DistanceX", 40, 1, -1, 1, Q("1.888931 mm")))
sketch4.addConstraint(Sketcher.Constraint("DistanceY", -1, 1, 44, 2, Q("15.942849 mm")))
sketch4.addConstraint(Sketcher.Constraint("DistanceX", -1, 1, 45, 2, Q("3.133362 mm")))
sketch4.addConstraint(Sketcher.Constraint("DistanceX", -1, 1, 47, 2, Q("5.11731 mm")))
sketch4.addConstraint(Sketcher.Constraint("DistanceX", -1, 1, 49, 2, Q("4.897641 mm")))
sketch4.addConstraint(Sketcher.Constraint("DistanceX", -1, 1, 50, 2, Q("0.50396 mm")))
sketch4.addConstraint(Sketcher.Constraint("Distance", 28, Q("10.876418 mm")))
sketch4.addConstraint(Sketcher.Constraint("Distance", 37, Q("11.106423 mm")))
sketch4.addConstraint(Sketcher.Constraint("Distance", 50, Q("6.213606 mm")))
sketch4.addConstraint(Sketcher.Constraint("DistanceX", 14, 3, -1, 1, Q("5.597918 mm")))
sketch4.addConstraint(Sketcher.Constraint("DistanceY", 14, 3, -1, 1, Q("12.764186 mm")))
sketch4.addConstraint(Sketcher.Constraint("DistanceX", 27, 3, -1, 1, Q("13.378674 mm")))
sketch4.addConstraint(Sketcher.Constraint("DistanceX", 29, 3, -1, 1, Q("1.428925 mm")))
sketch4.addConstraint(Sketcher.Constraint("DistanceX", 36, 3, -1, 1, Q("1.658924 mm")))
sketch4.addConstraint(Sketcher.Constraint("DistanceX", 40, 3, -1, 1, Q("1.888923 mm")))
sketch4.addConstraint(Sketcher.Constraint("DistanceX", -1, 1, 47, 3, Q("4.377843 mm")))
pad4 = body6.newObject("PartDesign::Pad", "Pad003")
pad4.Profile = sketch4
pad4.Length = 35
doc.recompute()

boolean3 = body6.newObject("PartDesign::Boolean", "Boolean002")
boolean3.Type = "Cut"
boolean3.addObjects([body5])

doc.recompute()
